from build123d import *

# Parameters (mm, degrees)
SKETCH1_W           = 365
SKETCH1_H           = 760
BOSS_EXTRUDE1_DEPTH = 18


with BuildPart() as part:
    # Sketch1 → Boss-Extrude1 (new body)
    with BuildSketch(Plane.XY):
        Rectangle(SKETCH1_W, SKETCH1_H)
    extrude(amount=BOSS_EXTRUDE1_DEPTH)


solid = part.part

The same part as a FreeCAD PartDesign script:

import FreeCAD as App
import Part
import Sketcher

V = App.Vector
Q = App.Units.Quantity

doc = App.newDocument("Part")
params = doc.addObject("Spreadsheet::Sheet", "Params")
for row, (alias, value) in enumerate([
    ("sketch1_width", "365 mm"),
    ("sketch1_height", "760 mm"),
    ("pad1_length", "18 mm"),
], start=1):
    params.set(f"A{row}", alias)
    params.set(f"B{row}", "=" + value)
    params.setAlias(f"B{row}", alias)

body = doc.addObject("PartDesign::Body", "Body")

sketch1 = body.newObject("Sketcher::SketchObject", "Sketch")
sketch1.AttachmentSupport = (doc.getObject("XY_Plane"), [""])
sketch1.MapMode = "FlatFace"
sketch1.addGeometry([
    Part.LineSegment(V(-182, 380, 0), V(-182, -380, 0)),
    Part.LineSegment(V(-182, -380, 0), V(182, -380, 0)),
    Part.LineSegment(V(182, -380, 0), V(182, 380, 0)),
    Part.LineSegment(V(182, 380, 0), V(-182, 380, 0)),
], False)
sketch1.addConstraint([
    Sketcher.Constraint("Coincident", 0, 2, 1, 1),
    Sketcher.Constraint("Coincident", 1, 2, 2, 1),
    Sketcher.Constraint("Coincident", 2, 2, 3, 1),
    Sketcher.Constraint("Coincident", 3, 2, 0, 1),
    Sketcher.Constraint("Vertical", 0),
    Sketcher.Constraint("Horizontal", 1),
    Sketcher.Constraint("Vertical", 2),
    Sketcher.Constraint("Horizontal", 3),
    Sketcher.Constraint("Symmetric", 0, 2, 2, 2, -1, 1),
    Sketcher.Constraint("DistanceX", 1, 1, 1, 2, Q("365 mm")),
    Sketcher.Constraint("DistanceY", 0, 2, 0, 1, Q("760 mm")),
])
sketch1.setExpression("Constraints[9]", "Params.sketch1_width")
sketch1.setExpression("Constraints[10]", "Params.sketch1_height")
pad1 = body.newObject("PartDesign::Pad", "Pad")
pad1.Profile = sketch1
pad1.setExpression("Length", "Params.pad1_length")

doc.recompute()
